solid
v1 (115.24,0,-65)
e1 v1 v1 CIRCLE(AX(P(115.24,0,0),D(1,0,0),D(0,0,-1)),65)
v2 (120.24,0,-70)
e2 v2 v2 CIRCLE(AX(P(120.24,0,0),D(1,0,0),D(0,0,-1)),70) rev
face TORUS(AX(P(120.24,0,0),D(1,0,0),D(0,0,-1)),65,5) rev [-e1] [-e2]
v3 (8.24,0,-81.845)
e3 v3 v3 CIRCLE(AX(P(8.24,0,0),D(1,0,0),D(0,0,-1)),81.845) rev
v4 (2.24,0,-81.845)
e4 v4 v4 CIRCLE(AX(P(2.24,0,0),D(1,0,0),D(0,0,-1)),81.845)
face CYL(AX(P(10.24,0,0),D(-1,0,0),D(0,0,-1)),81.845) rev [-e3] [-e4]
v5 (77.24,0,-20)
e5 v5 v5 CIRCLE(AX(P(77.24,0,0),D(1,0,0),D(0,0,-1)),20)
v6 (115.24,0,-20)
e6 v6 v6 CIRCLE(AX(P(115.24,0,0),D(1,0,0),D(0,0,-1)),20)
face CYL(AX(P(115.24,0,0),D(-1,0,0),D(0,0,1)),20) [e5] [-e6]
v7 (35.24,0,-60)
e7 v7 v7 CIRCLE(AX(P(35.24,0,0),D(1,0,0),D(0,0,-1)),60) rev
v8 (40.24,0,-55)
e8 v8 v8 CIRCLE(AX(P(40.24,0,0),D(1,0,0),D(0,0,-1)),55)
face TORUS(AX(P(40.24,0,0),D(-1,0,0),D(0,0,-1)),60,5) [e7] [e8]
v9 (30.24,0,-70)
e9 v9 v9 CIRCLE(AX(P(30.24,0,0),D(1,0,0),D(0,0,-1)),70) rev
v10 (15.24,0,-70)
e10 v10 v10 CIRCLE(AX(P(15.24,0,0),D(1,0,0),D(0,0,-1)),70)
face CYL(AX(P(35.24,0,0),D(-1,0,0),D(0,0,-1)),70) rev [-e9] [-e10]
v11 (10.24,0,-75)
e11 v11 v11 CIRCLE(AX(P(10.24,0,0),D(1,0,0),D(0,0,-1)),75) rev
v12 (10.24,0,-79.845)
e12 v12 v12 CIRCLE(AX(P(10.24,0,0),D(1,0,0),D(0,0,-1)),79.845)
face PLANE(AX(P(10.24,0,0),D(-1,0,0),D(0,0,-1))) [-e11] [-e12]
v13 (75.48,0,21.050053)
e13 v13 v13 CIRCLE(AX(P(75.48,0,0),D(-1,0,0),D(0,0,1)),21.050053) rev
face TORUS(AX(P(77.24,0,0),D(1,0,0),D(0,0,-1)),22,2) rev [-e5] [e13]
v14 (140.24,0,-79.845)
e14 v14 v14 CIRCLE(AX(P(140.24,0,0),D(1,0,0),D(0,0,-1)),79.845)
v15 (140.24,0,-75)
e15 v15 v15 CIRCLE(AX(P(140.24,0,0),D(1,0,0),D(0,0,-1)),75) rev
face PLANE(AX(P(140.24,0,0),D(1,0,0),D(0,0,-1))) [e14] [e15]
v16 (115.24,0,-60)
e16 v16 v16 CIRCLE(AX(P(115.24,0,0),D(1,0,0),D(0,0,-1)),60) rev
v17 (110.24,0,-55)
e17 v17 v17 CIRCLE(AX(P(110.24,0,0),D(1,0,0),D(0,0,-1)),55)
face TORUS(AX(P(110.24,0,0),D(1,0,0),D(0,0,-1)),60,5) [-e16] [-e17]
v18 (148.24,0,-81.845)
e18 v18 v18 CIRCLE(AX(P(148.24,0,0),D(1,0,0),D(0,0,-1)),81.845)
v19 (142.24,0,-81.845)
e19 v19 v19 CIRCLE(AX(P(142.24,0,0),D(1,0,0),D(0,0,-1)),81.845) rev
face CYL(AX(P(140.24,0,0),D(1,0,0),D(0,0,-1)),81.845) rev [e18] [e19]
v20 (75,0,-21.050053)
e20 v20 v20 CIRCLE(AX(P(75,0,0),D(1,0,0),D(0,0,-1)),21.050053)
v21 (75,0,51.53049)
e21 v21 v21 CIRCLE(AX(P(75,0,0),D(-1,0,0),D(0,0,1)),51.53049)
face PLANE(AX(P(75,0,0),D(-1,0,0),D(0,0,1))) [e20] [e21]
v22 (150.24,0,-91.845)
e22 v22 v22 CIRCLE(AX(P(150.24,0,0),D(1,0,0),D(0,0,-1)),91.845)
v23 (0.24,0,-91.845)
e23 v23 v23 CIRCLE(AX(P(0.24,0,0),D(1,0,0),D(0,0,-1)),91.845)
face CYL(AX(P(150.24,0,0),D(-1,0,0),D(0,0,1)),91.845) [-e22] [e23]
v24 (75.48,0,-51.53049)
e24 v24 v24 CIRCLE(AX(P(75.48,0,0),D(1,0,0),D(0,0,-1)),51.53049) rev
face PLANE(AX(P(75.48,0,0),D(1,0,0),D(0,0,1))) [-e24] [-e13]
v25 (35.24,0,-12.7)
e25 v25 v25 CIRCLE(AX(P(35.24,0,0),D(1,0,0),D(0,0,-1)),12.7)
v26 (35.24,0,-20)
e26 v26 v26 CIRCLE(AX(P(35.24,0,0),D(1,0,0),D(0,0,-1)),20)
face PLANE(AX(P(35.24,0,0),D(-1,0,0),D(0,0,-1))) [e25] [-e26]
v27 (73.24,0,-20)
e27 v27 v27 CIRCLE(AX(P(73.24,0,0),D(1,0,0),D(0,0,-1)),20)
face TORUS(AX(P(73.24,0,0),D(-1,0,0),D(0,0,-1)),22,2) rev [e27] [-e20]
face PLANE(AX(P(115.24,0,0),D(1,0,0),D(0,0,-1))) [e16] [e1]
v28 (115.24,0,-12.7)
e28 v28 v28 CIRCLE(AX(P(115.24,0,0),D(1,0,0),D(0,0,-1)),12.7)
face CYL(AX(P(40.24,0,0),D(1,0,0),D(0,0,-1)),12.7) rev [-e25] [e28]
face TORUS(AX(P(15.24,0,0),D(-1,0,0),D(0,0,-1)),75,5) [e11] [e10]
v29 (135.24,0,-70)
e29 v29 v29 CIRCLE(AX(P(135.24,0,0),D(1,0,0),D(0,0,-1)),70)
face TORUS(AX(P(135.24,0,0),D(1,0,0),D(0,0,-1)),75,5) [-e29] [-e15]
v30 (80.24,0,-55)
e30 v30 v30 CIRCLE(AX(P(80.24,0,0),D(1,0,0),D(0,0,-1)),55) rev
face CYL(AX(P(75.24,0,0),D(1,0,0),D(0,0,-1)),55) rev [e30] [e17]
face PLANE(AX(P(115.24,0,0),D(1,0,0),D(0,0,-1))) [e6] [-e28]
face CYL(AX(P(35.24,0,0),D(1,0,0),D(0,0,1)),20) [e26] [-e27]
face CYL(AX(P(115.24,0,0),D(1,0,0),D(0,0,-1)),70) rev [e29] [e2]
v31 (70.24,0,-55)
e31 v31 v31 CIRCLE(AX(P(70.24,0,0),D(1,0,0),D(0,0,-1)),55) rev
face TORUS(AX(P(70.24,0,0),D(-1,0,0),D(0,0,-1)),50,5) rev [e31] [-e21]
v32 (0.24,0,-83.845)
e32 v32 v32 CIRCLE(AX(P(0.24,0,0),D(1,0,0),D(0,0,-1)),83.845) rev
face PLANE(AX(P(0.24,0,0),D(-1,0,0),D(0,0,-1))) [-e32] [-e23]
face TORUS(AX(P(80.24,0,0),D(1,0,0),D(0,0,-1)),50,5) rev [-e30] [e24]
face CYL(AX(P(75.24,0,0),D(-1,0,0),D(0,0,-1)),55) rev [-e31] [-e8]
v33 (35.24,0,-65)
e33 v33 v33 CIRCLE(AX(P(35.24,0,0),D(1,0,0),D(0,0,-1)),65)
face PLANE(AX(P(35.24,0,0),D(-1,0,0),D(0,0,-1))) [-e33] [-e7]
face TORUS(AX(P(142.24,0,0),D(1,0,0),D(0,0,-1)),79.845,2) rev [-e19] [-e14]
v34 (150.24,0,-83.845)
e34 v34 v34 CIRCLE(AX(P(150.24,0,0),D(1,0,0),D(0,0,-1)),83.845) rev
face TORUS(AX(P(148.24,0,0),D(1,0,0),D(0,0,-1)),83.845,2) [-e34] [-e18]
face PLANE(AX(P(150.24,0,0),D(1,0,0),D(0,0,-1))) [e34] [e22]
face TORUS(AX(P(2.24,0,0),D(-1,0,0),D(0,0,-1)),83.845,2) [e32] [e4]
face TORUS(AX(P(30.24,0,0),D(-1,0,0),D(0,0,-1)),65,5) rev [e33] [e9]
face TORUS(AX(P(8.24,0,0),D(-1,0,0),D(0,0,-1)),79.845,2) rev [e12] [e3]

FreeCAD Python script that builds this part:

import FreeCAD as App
import Part
import Sketcher
from FreeCAD import Vector
Q = App.Units.Quantity


def edges_at(feature, points):
    """Names of the edges that pass closest to the given points."""
    edges = feature.Shape.Edges
    near = lambda p: min(range(len(edges)), key=lambda i: edges[i].distToShape(Part.Vertex(*p))[0])
    return sorted({f"Edge{near(p) + 1}" for p in points})

doc = App.newDocument("Part")
body = doc.addObject("PartDesign::Body", "Body")

# Sketch on YZ plane
sketch1 = body.newObject("Sketcher::SketchObject", "Sketch")
sketch1.AttachmentSupport = (doc.getObject("YZ_Plane"), [""])
sketch1.MapMode = "FlatFace"
sketch1.addGeometry(Part.Circle(Vector(0, 0, 0), Vector(0, 0, 1), 92), False)
sketch1.addConstraint([
    Sketcher.Constraint("Coincident", 0, 3, -1, 1),
    Sketcher.Constraint("Diameter", 0, Q("183.69 mm")),
])
pad1 = body.newObject("PartDesign::Pad", "Pad")
pad1.Profile = sketch1
pad1.Length = 150.24

# Sketch on YZ plane
sketch2 = body.newObject("Sketcher::SketchObject", "Sketch001")
sketch2.AttachmentSupport = (doc.getObject("YZ_Plane"), [""])
sketch2.MapMode = "FlatFace"
sketch2.AttachmentOffset = App.Placement(Vector(0, 0, 150.24), App.Rotation())
sketch2.addGeometry(Part.Circle(Vector(0, 0, 0), Vector(0, 0, 1), 82), False)
sketch2.addConstraint([
    Sketcher.Constraint("Coincident", 0, 3, -1, 1),
    Sketcher.Constraint("Diameter", 0, Q("163.69 mm")),
])
pocket1 = body.newObject("PartDesign::Pocket", "Pocket")
pocket1.Profile = sketch2
pocket1.Length = 10

# Sketch on YZ plane
sketch3 = body.newObject("Sketcher::SketchObject", "Sketch002")
sketch3.AttachmentSupport = (doc.getObject("YZ_Plane"), [""])
sketch3.MapMode = "FlatFace"
sketch3.AttachmentOffset = App.Placement(Vector(0, 0, 140.24), App.Rotation())
sketch3.addGeometry(Part.Circle(Vector(0, 0, 0), Vector(0, 0, 1), 70), False)
sketch3.addConstraint([
    Sketcher.Constraint("Coincident", 0, 3, -1, 1),
    Sketcher.Constraint("Diameter", 0, Q("140 mm")),
])
pocket2 = body.newObject("PartDesign::Pocket", "Pocket001")
pocket2.Profile = sketch3
pocket2.Length = 25

# Sketch on YZ plane
sketch4 = body.newObject("Sketcher::SketchObject", "Sketch003")
sketch4.AttachmentSupport = (doc.getObject("YZ_Plane"), [""])
sketch4.MapMode = "FlatFace"
sketch4.AttachmentOffset = App.Placement(Vector(0, 0, 115.24), App.Rotation())
sketch4.addGeometry(Part.Circle(Vector(0, 0, 0), Vector(0, 0, 1), 55), False)
sketch4.addConstraint([
    Sketcher.Constraint("Coincident", 0, 3, -1, 1),
    Sketcher.Constraint("Diameter", 0, Q("110 mm")),
])
pocket3 = body.newObject("PartDesign::Pocket", "Pocket002")
pocket3.Profile = sketch4
pocket3.Length = 40

# Sketch on YZ plane
sketch5 = body.newObject("Sketcher::SketchObject", "Sketch004")
sketch5.AttachmentSupport = (doc.getObject("YZ_Plane"), [""])
sketch5.MapMode = "FlatFace"
sketch5.AttachmentOffset = App.Placement(Vector(0, 0, 75.24), App.Rotation())
sketch5.addGeometry(Part.Circle(Vector(0, 0, 0), Vector(0, 0, 1), 20), False)
sketch5.addConstraint([
    Sketcher.Constraint("Coincident", 0, 3, -1, 1),
    Sketcher.Constraint("Diameter", 0, Q("40 mm")),
])
pad2 = body.newObject("PartDesign::Pad", "Pad001")
pad2.Profile = sketch5
pad2.Length = 40

# Sketch on YZ plane
sketch6 = body.newObject("Sketcher::SketchObject", "Sketch005")
sketch6.AttachmentSupport = (doc.getObject("YZ_Plane"), [""])
sketch6.MapMode = "FlatFace"
sketch6.addGeometry(Part.Circle(Vector(0, 0, 0), Vector(0, 0, 1), 92), False)
sketch6.addConstraint([
    Sketcher.Constraint("Coincident", 0, 3, -1, 1),
    Sketcher.Constraint("Diameter", 0, Q("183.69 mm")),
])
pocket4 = body.newObject("PartDesign::Pocket", "Pocket003")
pocket4.Profile = sketch6
pocket4.Length = 75
pocket4.Reversed = True
doc.recompute()

fillet = body.newObject("PartDesign::Fillet", "Fillet")
fillet.Base = (pocket4, edges_at(pocket4, [(150.24, 0, 81.845)]))
fillet.Radius = 2
doc.recompute()

fillet2 = body.newObject("PartDesign::Fillet", "Fillet001")
fillet2.Base = (fillet, edges_at(fillet, [(140.24, 0, 70)]))
fillet2.Radius = 5
doc.recompute()

fillet3 = body.newObject("PartDesign::Fillet", "Fillet002")
fillet3.Base = (fillet2, edges_at(fillet2, [(115.24, 0, 70)]))
fillet3.Radius = 5
doc.recompute()

fillet4 = body.newObject("PartDesign::Fillet", "Fillet003")
fillet4.Base = (fillet3, edges_at(fillet3, [(140.24, 0, 81.845)]))
fillet4.Radius = 2
doc.recompute()

fillet5 = body.newObject("PartDesign::Fillet", "Fillet004")
fillet5.Base = (fillet4, edges_at(fillet4, [(115.24, 0, 55)]))
fillet5.Radius = 5
doc.recompute()

fillet6 = body.newObject("PartDesign::Fillet", "Fillet005")
fillet6.Base = (fillet5, edges_at(fillet5, [(75.24, 0, 55)]))
fillet6.Radius = 5
doc.recompute()

fillet7 = body.newObject("PartDesign::Fillet", "Fillet006")
fillet7.Base = (fillet6, edges_at(fillet6, [(75.24, 0, 20)]))
fillet7.Radius = 2

# Sketch on YZ plane
sketch7 = body.newObject("Sketcher::SketchObject", "Sketch006")
sketch7.AttachmentSupport = (doc.getObject("YZ_Plane"), [""])
sketch7.MapMode = "FlatFace"
sketch7.AttachmentOffset = App.Placement(Vector(0, 0, 115.24), App.Rotation())
sketch7.addGeometry(Part.Circle(Vector(0, 0, 0), Vector(0, 0, 1), 13), False)
sketch7.addConstraint([
    Sketcher.Constraint("Coincident", 0, 3, -1, 1),
    Sketcher.Constraint("Diameter", 0, Q("25.4 mm")),
])
pocket5 = body.newObject("PartDesign::Pocket", "Pocket004")
pocket5.Profile = sketch7
pocket5.Length = 75
body2 = doc.addObject("PartDesign::Body", "Body001")
doc.recompute()

body2.BaseFeature = body
doc.recompute()

mirroring = doc.addObject("Part::Mirroring", "Mirroring")
mirroring.Source = body
mirroring.Base = Vector(75.24, 0, 0)
mirroring.Normal = Vector(1, 0, 0)
body3 = doc.addObject("PartDesign::Body", "Body002")
body3.BaseFeature = mirroring
boolean = body2.newObject("PartDesign::Boolean", "Boolean")
boolean.Type = "Fuse"
boolean.addObjects([body3])
doc.recompute()
mirroring.Visibility = False

doc.recompute()
